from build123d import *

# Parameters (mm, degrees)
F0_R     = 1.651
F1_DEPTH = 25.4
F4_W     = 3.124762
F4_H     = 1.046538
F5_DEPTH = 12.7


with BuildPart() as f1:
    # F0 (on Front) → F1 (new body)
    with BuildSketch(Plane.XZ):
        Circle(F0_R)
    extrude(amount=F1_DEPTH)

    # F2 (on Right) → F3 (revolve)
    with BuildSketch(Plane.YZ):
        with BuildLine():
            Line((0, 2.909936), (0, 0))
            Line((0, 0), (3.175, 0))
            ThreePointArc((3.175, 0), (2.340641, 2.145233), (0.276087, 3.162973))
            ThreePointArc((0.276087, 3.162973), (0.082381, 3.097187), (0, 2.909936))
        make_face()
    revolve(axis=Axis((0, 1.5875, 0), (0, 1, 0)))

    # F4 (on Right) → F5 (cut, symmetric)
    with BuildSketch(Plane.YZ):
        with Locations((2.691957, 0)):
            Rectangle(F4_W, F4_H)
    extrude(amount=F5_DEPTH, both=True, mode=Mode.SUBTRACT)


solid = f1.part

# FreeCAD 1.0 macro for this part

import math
import FreeCAD as App
import Part
import Sketcher

V = App.Vector
Q = App.Units.Quantity


def add_polygon(sketch, points):
    """Adds a closed chain of lines whose ends are joined by coincident constraints."""
    first, n = sketch.GeometryCount, len(points)
    for a, b in zip(points, points[1:] + points[:1]):
        sketch.addGeometry(Part.LineSegment(App.Vector(*a, 0), App.Vector(*b, 0)), False)
    for i in range(n):
        sketch.addConstraint(Sketcher.Constraint("Coincident", first + i, 2, first + (i + 1) % n, 1))

doc = App.newDocument("Part")
body = doc.addObject("PartDesign::Body", "Body")

sketch1 = body.newObject("Sketcher::SketchObject", "Sketch")
sketch1.AttachmentSupport = (doc.getObject("XZ_Plane"), [""])
sketch1.MapMode = "FlatFace"
sketch1.addGeometry(Part.Circle(V(0, 0, 0), V(0, 0, 1), 1.7), False)
sketch1.addConstraint([
    Sketcher.Constraint("Coincident", 0, 3, -1, 1),
    Sketcher.Constraint("Diameter", 0, Q("0.13 in")),
])
pad1 = body.newObject("PartDesign::Pad", "Pad")
pad1.Profile = sketch1
pad1.Length = Q("1 in")

sketch2 = body.newObject("Sketcher::SketchObject", "Sketch001")
sketch2.AttachmentSupport = (doc.getObject("YZ_Plane"), [""])
sketch2.MapMode = "FlatFace"
sketch2.addGeometry([
    Part.LineSegment(V(0, 2.91, 0), V(0, 0, 0)),
    Part.LineSegment(V(0, 0, 0), V(3.17, 0, 0)),
    Part.ArcOfCircle(Part.Circle(V(0, 0, 0), V(0, 0, 1), 3.17), math.radians(0), math.radians(85)),
    Part.ArcOfCircle(Part.Circle(V(0.25, 2.91, 0), V(0, 0, 1), 0.25), math.radians(85), math.radians(180)),
], False)
sketch2.addConstraint([
    Sketcher.Constraint("Coincident", 0, 2, 1, 1),
    Sketcher.Constraint("Coincident", 1, 2, 2, 1),
    Sketcher.Constraint("Coincident", 2, 2, 3, 1),
    Sketcher.Constraint("Coincident", 3, 2, 0, 1),
    Sketcher.Constraint("Vertical", 0),
    Sketcher.Constraint("Horizontal", 1),
    Sketcher.Constraint("Coincident", 2, 3, -1, 1),
    Sketcher.Constraint("Coincident", 0, 2, -1, 1),
    Sketcher.Constraint("Radius", 3, Q("0.0099999 in")),
    Sketcher.Constraint("Radius", 2, Q("0.125 in")),
    Sketcher.Constraint("DistanceY", 0, 2, 0, 1, 2.909936),
    Sketcher.Constraint("DistanceX", 3, 3, 2, 2, 0.022088),
])
revolution = body.newObject("PartDesign::Revolution", "Revolution")
revolution.Profile = sketch2
revolution.ReferenceAxis = (sketch2, ["H_Axis"])
revolution.Angle = 360

sketch3 = body.newObject("Sketcher::SketchObject", "Sketch002")
sketch3.AttachmentSupport = (doc.getObject("YZ_Plane"), [""])
sketch3.MapMode = "FlatFace"
add_polygon(sketch3, [(1.1, 0.5), (1.1, -0.5), (4.3, -0.5), (4.3, 0.5)])
sketch3.addConstraint([
    Sketcher.Constraint("Vertical", 0),
    Sketcher.Constraint("Horizontal", 1),
    Sketcher.Constraint("Vertical", 2),
    Sketcher.Constraint("Horizontal", 3),
    Sketcher.Constraint("DistanceX", 1, 1, 1, 2, 3.124762),
    Sketcher.Constraint("DistanceY", 0, 2, 0, 1, 1.046538),
    Sketcher.Constraint("DistanceY", 0, 2, -1, 1, 0.523269),
    Sketcher.Constraint("DistanceX", -1, 1, 0, 2, 1.129576),
])
pocket1 = body.newObject("PartDesign::Pocket", "Pocket")
pocket1.Profile = sketch3
pocket1.Length = Q("1 in")
pocket1.Midplane = True

doc.recompute()
